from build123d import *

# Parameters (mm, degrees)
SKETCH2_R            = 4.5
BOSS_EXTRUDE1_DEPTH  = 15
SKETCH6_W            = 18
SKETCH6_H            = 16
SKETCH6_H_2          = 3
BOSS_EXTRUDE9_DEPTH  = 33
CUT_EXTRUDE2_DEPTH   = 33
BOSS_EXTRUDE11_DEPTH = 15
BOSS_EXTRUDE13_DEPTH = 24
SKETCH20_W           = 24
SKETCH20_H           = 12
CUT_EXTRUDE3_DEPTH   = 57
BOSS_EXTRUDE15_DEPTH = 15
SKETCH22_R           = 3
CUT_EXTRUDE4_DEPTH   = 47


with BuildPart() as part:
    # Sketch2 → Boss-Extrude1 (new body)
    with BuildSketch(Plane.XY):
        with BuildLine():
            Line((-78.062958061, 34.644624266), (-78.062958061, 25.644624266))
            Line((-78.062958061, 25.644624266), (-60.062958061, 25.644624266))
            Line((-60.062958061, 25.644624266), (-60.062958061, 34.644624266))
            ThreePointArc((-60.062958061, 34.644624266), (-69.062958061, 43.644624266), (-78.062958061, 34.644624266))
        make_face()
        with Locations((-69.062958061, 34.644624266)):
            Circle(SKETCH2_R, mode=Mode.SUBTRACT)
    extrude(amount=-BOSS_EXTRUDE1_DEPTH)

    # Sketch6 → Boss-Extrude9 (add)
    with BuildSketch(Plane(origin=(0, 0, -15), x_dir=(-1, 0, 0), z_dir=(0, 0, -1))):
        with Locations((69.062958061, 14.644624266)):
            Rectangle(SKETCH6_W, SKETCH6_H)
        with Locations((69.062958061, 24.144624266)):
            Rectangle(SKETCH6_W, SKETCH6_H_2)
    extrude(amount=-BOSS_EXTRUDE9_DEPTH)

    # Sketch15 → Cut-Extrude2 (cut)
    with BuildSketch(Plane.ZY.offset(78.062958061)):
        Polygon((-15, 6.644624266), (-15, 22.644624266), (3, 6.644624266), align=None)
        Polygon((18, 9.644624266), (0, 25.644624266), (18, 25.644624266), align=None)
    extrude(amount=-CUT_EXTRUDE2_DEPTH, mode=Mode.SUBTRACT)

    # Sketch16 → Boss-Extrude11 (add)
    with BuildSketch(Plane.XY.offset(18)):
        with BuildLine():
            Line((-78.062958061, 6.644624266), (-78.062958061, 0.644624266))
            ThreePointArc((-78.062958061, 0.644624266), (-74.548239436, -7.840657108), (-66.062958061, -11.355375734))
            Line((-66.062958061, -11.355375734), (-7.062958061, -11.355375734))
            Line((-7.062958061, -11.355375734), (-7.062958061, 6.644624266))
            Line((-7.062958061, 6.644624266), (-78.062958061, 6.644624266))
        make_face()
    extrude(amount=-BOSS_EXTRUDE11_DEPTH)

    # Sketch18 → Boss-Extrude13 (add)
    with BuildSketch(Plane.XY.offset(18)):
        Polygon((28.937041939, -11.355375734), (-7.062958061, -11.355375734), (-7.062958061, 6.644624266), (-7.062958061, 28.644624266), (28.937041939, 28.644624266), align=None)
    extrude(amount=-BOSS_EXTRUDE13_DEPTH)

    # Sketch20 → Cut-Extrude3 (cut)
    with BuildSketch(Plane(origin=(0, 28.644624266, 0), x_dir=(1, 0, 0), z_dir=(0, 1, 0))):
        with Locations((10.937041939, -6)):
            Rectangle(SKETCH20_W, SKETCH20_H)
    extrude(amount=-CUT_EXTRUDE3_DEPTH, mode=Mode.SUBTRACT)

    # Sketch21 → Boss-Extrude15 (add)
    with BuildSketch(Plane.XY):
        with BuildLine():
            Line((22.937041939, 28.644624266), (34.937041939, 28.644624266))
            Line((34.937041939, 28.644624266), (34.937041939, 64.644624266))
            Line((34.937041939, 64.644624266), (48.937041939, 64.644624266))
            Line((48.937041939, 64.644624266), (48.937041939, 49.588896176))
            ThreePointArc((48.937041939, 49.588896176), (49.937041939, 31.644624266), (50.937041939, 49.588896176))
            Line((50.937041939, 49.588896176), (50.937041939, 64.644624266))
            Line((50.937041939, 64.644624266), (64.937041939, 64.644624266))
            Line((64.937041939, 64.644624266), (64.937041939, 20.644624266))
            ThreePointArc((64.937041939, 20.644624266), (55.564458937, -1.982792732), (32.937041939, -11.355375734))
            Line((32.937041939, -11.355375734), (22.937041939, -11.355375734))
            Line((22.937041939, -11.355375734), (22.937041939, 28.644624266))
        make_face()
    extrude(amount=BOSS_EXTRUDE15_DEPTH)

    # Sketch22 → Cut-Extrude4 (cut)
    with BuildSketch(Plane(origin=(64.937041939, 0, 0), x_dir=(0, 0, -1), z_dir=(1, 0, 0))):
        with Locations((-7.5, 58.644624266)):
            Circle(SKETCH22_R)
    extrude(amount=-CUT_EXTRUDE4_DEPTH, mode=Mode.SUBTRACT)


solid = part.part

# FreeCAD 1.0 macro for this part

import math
import FreeCAD as App
import Part
import Sketcher


def add_polygon(sketch, points):
    """Adds a closed chain of lines whose ends are joined by coincident constraints."""
    first, n = sketch.GeometryCount, len(points)
    for a, b in zip(points, points[1:] + points[:1]):
        sketch.addGeometry(Part.LineSegment(App.Vector(*a, 0), App.Vector(*b, 0)), False)
    for i in range(n):
        sketch.addConstraint(Sketcher.Constraint("Coincident", first + i, 2, first + (i + 1) % n, 1))

doc = App.newDocument("Part")
body = doc.addObject("PartDesign::Body", "Body")

# Sketch on XY plane
sketch1 = body.newObject("Sketcher::SketchObject", "Sketch")
sketch1.AttachmentSupport = (doc.getObject("XY_Plane"), [""])
sketch1.MapMode = "FlatFace"
sketch1.addGeometry([
    Part.LineSegment(App.Vector(-78.062958, 34.644624, 0), App.Vector(-78.062958, 25.644624, 0)),  # 0
    Part.LineSegment(App.Vector(-78.062958, 25.644624, 0), App.Vector(-60.062958, 25.644624, 0)),  # 1
    Part.LineSegment(App.Vector(-60.062958, 25.644624, 0), App.Vector(-60.062958, 34.644624, 0)),  # 2
    Part.ArcOfCircle(Part.Circle(App.Vector(-69.062958, 34.644624, 0), App.Vector(0, 0, 1), 9), math.radians(0), math.radians(180)),  # 3
    Part.Circle(App.Vector(-69.062958, 34.644624, 0), App.Vector(0, 0, 1), 4.5),  # 4
], False)
sketch1.addConstraint([
    Sketcher.Constraint("Coincident", 0, 2, 1, 1),
    Sketcher.Constraint("Coincident", 1, 2, 2, 1),
    Sketcher.Constraint("Tangent", 2, 2, 3, 1),
    Sketcher.Constraint("Tangent", 3, 2, 0, 1),
    Sketcher.Constraint("Vertical", 0),
    Sketcher.Constraint("Horizontal", 1),
    Sketcher.Constraint("Vertical", 2),
    Sketcher.Constraint("Coincident", 4, 3, 3, 3),
    Sketcher.Constraint("Diameter", 4, 9.0),
    Sketcher.Constraint("Radius", 3, 9.0),
    Sketcher.Constraint("DistanceY", 0, 2, 0, 1, 9.0),
    Sketcher.Constraint("DistanceX", 3, 3, -1, 1, 69.062958),
    Sketcher.Constraint("DistanceY", -1, 1, 3, 3, 34.644624),
])
pad1 = body.newObject("PartDesign::Pad", "Pad")
pad1.Profile = sketch1
pad1.Length = 15
pad1.Reversed = True

# Sketch on XY plane
sketch2 = body.newObject("Sketcher::SketchObject", "Sketch001")
sketch2.AttachmentSupport = (doc.getObject("XY_Plane"), [""])
sketch2.MapMode = "FlatFace"
sketch2.AttachmentOffset = App.Placement(App.Vector(0, 0, -15), App.Rotation())
add_polygon(sketch2, [(-60.062958, 6.644624), (-78.062958, 6.644624), (-78.062958, 25.644624), (-60.062958, 25.644624)])  # lines 0-3
sketch2.addConstraint([
    Sketcher.Constraint("Horizontal", 0),
    Sketcher.Constraint("Vertical", 1),
    Sketcher.Constraint("Horizontal", 2),
    Sketcher.Constraint("Vertical", 3),
    Sketcher.Constraint("DistanceX", 0, 2, 0, 1, 18.0),
    Sketcher.Constraint("DistanceY", 1, 1, 1, 2, 19.0),
    Sketcher.Constraint("DistanceX", 0, 2, -1, 1, 78.062958),
    Sketcher.Constraint("DistanceY", -1, 1, 0, 2, 6.644624),
])
pad2 = body.newObject("PartDesign::Pad", "Pad001")
pad2.Profile = sketch2
pad2.Length = 33

# Sketch on YZ plane
sketch3 = body.newObject("Sketcher::SketchObject", "Sketch002")
sketch3.AttachmentSupport = (doc.getObject("YZ_Plane"), [""])
sketch3.MapMode = "FlatFace"
sketch3.AttachmentOffset = App.Placement(App.Vector(0, 0, -78.062958), App.Rotation())
add_polygon(sketch3, [(22.644624, -15), (6.644624, -15), (6.644624, 3)])  # lines 0-2
add_polygon(sketch3, [(25.644624, 0), (9.644624, 18), (25.644624, 18)])  # lines 3-5
sketch3.addConstraint([
    Sketcher.Constraint("Horizontal", 0),
    Sketcher.Constraint("Vertical", 1),
    Sketcher.Constraint("Horizontal", 4),
    Sketcher.Constraint("Vertical", 5),
    Sketcher.Constraint("PointOnObject", 5, 2, -1),
    Sketcher.Constraint("Parallel", 2, 3),
    Sketcher.Constraint("Equal", 0, 4),
    Sketcher.Constraint("DistanceX", 0, 2, 0, 1, 16.0),
    Sketcher.Constraint("DistanceY", 1, 1, 1, 2, 18.0),
    Sketcher.Constraint("DistanceY", 0, 2, -1, 1, 15.0),
    Sketcher.Constraint("DistanceX", 1, 2, 3, 2, 3.0),
    Sketcher.Constraint("DistanceX", -1, 1, 0, 2, 6.644624),
])
pocket1 = body.newObject("PartDesign::Pocket", "Pocket")
pocket1.Profile = sketch3
pocket1.Length = 33
pocket1.Reversed = True

# Sketch on XY plane
sketch4 = body.newObject("Sketcher::SketchObject", "Sketch003")
sketch4.AttachmentSupport = (doc.getObject("XY_Plane"), [""])
sketch4.MapMode = "FlatFace"
sketch4.AttachmentOffset = App.Placement(App.Vector(0, 0, 18), App.Rotation())
sketch4.addGeometry([
    Part.LineSegment(App.Vector(-78.062958, 6.644624, 0), App.Vector(-78.062958, 0.644624, 0)),  # 0
    Part.ArcOfCircle(Part.Circle(App.Vector(-66.062958, 0.644624, 0), App.Vector(0, 0, 1), 12), math.radians(180), math.radians(270)),  # 1
    Part.LineSegment(App.Vector(-66.062958, -11.355376, 0), App.Vector(-7.062958, -11.355376, 0)),  # 2
    Part.LineSegment(App.Vector(-7.062958, -11.355376, 0), App.Vector(-7.062958, 6.644624, 0)),  # 3
    Part.LineSegment(App.Vector(-7.062958, 6.644624, 0), App.Vector(-78.062958, 6.644624, 0)),  # 4
], False)
sketch4.addConstraint([
    Sketcher.Constraint("Tangent", 0, 2, 1, 1),
    Sketcher.Constraint("Tangent", 1, 2, 2, 1),
    Sketcher.Constraint("Coincident", 2, 2, 3, 1),
    Sketcher.Constraint("Coincident", 3, 2, 4, 1),
    Sketcher.Constraint("Coincident", 4, 2, 0, 1),
    Sketcher.Constraint("Vertical", 0),
    Sketcher.Constraint("Horizontal", 2),
    Sketcher.Constraint("Vertical", 3),
    Sketcher.Constraint("Horizontal", 4),
    Sketcher.Constraint("Radius", 1, 12.0),
    Sketcher.Constraint("DistanceX", 2, 1, 2, 2, 59.0),
    Sketcher.Constraint("DistanceY", 0, 2, 0, 1, 6.0),
    Sketcher.Constraint("DistanceX", 1, 3, -1, 1, 66.062958),
    Sketcher.Constraint("DistanceY", -1, 1, 1, 3, 0.644624),
])
pad3 = body.newObject("PartDesign::Pad", "Pad002")
pad3.Profile = sketch4
pad3.Length = 15
pad3.Reversed = True

# Sketch on XY plane
sketch5 = body.newObject("Sketcher::SketchObject", "Sketch004")
sketch5.AttachmentSupport = (doc.getObject("XY_Plane"), [""])
sketch5.MapMode = "FlatFace"
sketch5.AttachmentOffset = App.Placement(App.Vector(0, 0, 18), App.Rotation())
add_polygon(sketch5, [(-7.062958, -11.355376), (28.937042, -11.355376), (28.937042, 28.644624), (-7.062958, 28.644624)])  # lines 0-3
sketch5.addConstraint([
    Sketcher.Constraint("Horizontal", 0),
    Sketcher.Constraint("Vertical", 1),
    Sketcher.Constraint("Horizontal", 2),
    Sketcher.Constraint("Vertical", 3),
    Sketcher.Constraint("DistanceX", 0, 1, 0, 2, 36.0),
    Sketcher.Constraint("DistanceY", 1, 1, 1, 2, 40.0),
    Sketcher.Constraint("DistanceX", -1, 1, 0, 2, 28.937042),
    Sketcher.Constraint("DistanceY", 0, 2, -1, 1, 11.355376),
])
pad4 = body.newObject("PartDesign::Pad", "Pad003")
pad4.Profile = sketch5
pad4.Length = 24
pad4.Reversed = True

# Sketch on XZ plane
sketch6 = body.newObject("Sketcher::SketchObject", "Sketch005")
sketch6.AttachmentSupport = (doc.getObject("XZ_Plane"), [""])
sketch6.MapMode = "FlatFace"
sketch6.AttachmentOffset = App.Placement(App.Vector(0, 0, -28.644624), App.Rotation())
add_polygon(sketch6, [(-1.062958, 0), (-1.062958, 12), (22.937042, 12), (22.937042, 0)])  # lines 0-3
sketch6.addConstraint([
    Sketcher.Constraint("Vertical", 0),
    Sketcher.Constraint("Horizontal", 1),
    Sketcher.Constraint("Vertical", 2),
    Sketcher.Constraint("Horizontal", 3),
    Sketcher.Constraint("PointOnObject", 2, 2, -1),
    Sketcher.Constraint("DistanceX", 1, 1, 1, 2, 24.0),
    Sketcher.Constraint("DistanceY", 0, 1, 0, 2, 12.0),
    Sketcher.Constraint("DistanceX", 0, 2, -1, 1, 1.062958),
])
pocket2 = body.newObject("PartDesign::Pocket", "Pocket001")
pocket2.Profile = sketch6
pocket2.Length = 57
pocket2.Reversed = True

# Sketch on XY plane
sketch7 = body.newObject("Sketcher::SketchObject", "Sketch006")
sketch7.AttachmentSupport = (doc.getObject("XY_Plane"), [""])
sketch7.MapMode = "FlatFace"
sketch7.addGeometry([
    Part.LineSegment(App.Vector(34.937042, 28.644624, 0), App.Vector(22.937042, 28.644624, 0)),  # 0
    Part.LineSegment(App.Vector(22.937042, 28.644624, 0), App.Vector(22.937042, -11.355376, 0)),  # 1
    Part.LineSegment(App.Vector(22.937042, -11.355376, 0), App.Vector(32.937042, -11.355376, 0)),  # 2
    Part.ArcOfCircle(Part.Circle(App.Vector(32.937042, 20.644624, 0), App.Vector(0, 0, 1), 32), math.radians(-90), math.radians(0)),  # 3
    Part.LineSegment(App.Vector(64.937042, 20.644624, 0), App.Vector(64.937042, 64.644624, 0)),  # 4
    Part.LineSegment(App.Vector(64.937042, 64.644624, 0), App.Vector(50.937042, 64.644624, 0)),  # 5
    Part.LineSegment(App.Vector(50.937042, 64.644624, 0), App.Vector(50.937042, 49.588896, 0)),  # 6
    Part.ArcOfCircle(Part.Circle(App.Vector(49.937042, 40.644624, 0), App.Vector(0, 0, 1), 9), math.radians(96.37937), math.radians(443.62063)),  # 7
    Part.LineSegment(App.Vector(48.937042, 49.588896, 0), App.Vector(48.937042, 64.644624, 0)),  # 8
    Part.LineSegment(App.Vector(48.937042, 64.644624, 0), App.Vector(34.937042, 64.644624, 0)),  # 9
    Part.LineSegment(App.Vector(34.937042, 64.644624, 0), App.Vector(34.937042, 28.644624, 0)),  # 10
], False)
sketch7.addConstraint([
    Sketcher.Constraint("Coincident", 0, 2, 1, 1),
    Sketcher.Constraint("Coincident", 1, 2, 2, 1),
    Sketcher.Constraint("Tangent", 2, 2, 3, 1),
    Sketcher.Constraint("Tangent", 3, 2, 4, 1),
    Sketcher.Constraint("Coincident", 4, 2, 5, 1),
    Sketcher.Constraint("Coincident", 5, 2, 6, 1),
    Sketcher.Constraint("Coincident", 6, 2, 7, 2),
    Sketcher.Constraint("Coincident", 7, 1, 8, 1),
    Sketcher.Constraint("Coincident", 8, 2, 9, 1),
    Sketcher.Constraint("Coincident", 9, 2, 10, 1),
    Sketcher.Constraint("Coincident", 10, 2, 0, 1),
    Sketcher.Constraint("Horizontal", 0),
    Sketcher.Constraint("Vertical", 1),
    Sketcher.Constraint("Horizontal", 2),
    Sketcher.Constraint("Vertical", 4),
    Sketcher.Constraint("Horizontal", 5),
    Sketcher.Constraint("Vertical", 6),
    Sketcher.Constraint("Vertical", 8),
    Sketcher.Constraint("Horizontal", 9),
    Sketcher.Constraint("Vertical", 10),
    Sketcher.Constraint("Horizontal", 6, 2, 7, 1),
    Sketcher.Constraint("Horizontal", 5, 2, 8, 2),
    Sketcher.Constraint("Equal", 5, 9),
    Sketcher.Constraint("Radius", 3, 32.0),
    Sketcher.Constraint("Radius", 7, 9.0),
    Sketcher.Constraint("DistanceX", 0, 2, 0, 1, 12.0),
    Sketcher.Constraint("DistanceX", 2, 1, 2, 2, 10.0),
    Sketcher.Constraint("DistanceX", 5, 2, 5, 1, 14.0),
    Sketcher.Constraint("DistanceY", 1, 2, 1, 1, 40.0),
    Sketcher.Constraint("DistanceY", 4, 1, 4, 2, 44.0),
    Sketcher.Constraint("DistanceY", 3, 3, 7, 3, 20.0),
    Sketcher.Constraint("DistanceX", -1, 1, 3, 3, 32.937042),
    Sketcher.Constraint("DistanceY", -1, 1, 3, 3, 20.644624),
])
pad5 = body.newObject("PartDesign::Pad", "Pad004")
pad5.Profile = sketch7
pad5.Length = 15

# Sketch on YZ plane
sketch8 = body.newObject("Sketcher::SketchObject", "Sketch007")
sketch8.AttachmentSupport = (doc.getObject("YZ_Plane"), [""])
sketch8.MapMode = "FlatFace"
sketch8.AttachmentOffset = App.Placement(App.Vector(0, 0, 64.937042), App.Rotation())
sketch8.addGeometry(Part.Circle(App.Vector(58.644624, 7.5, 0), App.Vector(0, 0, 1), 3), False)
sketch8.addConstraint([
    Sketcher.Constraint("Diameter", 0, 6.0),
    Sketcher.Constraint("DistanceY", -1, 1, 0, 3, 7.5),
    Sketcher.Constraint("DistanceX", -1, 1, 0, 3, 58.644624),
])
pocket3 = body.newObject("PartDesign::Pocket", "Pocket002")
pocket3.Profile = sketch8
pocket3.Length = 47

doc.recompute()
